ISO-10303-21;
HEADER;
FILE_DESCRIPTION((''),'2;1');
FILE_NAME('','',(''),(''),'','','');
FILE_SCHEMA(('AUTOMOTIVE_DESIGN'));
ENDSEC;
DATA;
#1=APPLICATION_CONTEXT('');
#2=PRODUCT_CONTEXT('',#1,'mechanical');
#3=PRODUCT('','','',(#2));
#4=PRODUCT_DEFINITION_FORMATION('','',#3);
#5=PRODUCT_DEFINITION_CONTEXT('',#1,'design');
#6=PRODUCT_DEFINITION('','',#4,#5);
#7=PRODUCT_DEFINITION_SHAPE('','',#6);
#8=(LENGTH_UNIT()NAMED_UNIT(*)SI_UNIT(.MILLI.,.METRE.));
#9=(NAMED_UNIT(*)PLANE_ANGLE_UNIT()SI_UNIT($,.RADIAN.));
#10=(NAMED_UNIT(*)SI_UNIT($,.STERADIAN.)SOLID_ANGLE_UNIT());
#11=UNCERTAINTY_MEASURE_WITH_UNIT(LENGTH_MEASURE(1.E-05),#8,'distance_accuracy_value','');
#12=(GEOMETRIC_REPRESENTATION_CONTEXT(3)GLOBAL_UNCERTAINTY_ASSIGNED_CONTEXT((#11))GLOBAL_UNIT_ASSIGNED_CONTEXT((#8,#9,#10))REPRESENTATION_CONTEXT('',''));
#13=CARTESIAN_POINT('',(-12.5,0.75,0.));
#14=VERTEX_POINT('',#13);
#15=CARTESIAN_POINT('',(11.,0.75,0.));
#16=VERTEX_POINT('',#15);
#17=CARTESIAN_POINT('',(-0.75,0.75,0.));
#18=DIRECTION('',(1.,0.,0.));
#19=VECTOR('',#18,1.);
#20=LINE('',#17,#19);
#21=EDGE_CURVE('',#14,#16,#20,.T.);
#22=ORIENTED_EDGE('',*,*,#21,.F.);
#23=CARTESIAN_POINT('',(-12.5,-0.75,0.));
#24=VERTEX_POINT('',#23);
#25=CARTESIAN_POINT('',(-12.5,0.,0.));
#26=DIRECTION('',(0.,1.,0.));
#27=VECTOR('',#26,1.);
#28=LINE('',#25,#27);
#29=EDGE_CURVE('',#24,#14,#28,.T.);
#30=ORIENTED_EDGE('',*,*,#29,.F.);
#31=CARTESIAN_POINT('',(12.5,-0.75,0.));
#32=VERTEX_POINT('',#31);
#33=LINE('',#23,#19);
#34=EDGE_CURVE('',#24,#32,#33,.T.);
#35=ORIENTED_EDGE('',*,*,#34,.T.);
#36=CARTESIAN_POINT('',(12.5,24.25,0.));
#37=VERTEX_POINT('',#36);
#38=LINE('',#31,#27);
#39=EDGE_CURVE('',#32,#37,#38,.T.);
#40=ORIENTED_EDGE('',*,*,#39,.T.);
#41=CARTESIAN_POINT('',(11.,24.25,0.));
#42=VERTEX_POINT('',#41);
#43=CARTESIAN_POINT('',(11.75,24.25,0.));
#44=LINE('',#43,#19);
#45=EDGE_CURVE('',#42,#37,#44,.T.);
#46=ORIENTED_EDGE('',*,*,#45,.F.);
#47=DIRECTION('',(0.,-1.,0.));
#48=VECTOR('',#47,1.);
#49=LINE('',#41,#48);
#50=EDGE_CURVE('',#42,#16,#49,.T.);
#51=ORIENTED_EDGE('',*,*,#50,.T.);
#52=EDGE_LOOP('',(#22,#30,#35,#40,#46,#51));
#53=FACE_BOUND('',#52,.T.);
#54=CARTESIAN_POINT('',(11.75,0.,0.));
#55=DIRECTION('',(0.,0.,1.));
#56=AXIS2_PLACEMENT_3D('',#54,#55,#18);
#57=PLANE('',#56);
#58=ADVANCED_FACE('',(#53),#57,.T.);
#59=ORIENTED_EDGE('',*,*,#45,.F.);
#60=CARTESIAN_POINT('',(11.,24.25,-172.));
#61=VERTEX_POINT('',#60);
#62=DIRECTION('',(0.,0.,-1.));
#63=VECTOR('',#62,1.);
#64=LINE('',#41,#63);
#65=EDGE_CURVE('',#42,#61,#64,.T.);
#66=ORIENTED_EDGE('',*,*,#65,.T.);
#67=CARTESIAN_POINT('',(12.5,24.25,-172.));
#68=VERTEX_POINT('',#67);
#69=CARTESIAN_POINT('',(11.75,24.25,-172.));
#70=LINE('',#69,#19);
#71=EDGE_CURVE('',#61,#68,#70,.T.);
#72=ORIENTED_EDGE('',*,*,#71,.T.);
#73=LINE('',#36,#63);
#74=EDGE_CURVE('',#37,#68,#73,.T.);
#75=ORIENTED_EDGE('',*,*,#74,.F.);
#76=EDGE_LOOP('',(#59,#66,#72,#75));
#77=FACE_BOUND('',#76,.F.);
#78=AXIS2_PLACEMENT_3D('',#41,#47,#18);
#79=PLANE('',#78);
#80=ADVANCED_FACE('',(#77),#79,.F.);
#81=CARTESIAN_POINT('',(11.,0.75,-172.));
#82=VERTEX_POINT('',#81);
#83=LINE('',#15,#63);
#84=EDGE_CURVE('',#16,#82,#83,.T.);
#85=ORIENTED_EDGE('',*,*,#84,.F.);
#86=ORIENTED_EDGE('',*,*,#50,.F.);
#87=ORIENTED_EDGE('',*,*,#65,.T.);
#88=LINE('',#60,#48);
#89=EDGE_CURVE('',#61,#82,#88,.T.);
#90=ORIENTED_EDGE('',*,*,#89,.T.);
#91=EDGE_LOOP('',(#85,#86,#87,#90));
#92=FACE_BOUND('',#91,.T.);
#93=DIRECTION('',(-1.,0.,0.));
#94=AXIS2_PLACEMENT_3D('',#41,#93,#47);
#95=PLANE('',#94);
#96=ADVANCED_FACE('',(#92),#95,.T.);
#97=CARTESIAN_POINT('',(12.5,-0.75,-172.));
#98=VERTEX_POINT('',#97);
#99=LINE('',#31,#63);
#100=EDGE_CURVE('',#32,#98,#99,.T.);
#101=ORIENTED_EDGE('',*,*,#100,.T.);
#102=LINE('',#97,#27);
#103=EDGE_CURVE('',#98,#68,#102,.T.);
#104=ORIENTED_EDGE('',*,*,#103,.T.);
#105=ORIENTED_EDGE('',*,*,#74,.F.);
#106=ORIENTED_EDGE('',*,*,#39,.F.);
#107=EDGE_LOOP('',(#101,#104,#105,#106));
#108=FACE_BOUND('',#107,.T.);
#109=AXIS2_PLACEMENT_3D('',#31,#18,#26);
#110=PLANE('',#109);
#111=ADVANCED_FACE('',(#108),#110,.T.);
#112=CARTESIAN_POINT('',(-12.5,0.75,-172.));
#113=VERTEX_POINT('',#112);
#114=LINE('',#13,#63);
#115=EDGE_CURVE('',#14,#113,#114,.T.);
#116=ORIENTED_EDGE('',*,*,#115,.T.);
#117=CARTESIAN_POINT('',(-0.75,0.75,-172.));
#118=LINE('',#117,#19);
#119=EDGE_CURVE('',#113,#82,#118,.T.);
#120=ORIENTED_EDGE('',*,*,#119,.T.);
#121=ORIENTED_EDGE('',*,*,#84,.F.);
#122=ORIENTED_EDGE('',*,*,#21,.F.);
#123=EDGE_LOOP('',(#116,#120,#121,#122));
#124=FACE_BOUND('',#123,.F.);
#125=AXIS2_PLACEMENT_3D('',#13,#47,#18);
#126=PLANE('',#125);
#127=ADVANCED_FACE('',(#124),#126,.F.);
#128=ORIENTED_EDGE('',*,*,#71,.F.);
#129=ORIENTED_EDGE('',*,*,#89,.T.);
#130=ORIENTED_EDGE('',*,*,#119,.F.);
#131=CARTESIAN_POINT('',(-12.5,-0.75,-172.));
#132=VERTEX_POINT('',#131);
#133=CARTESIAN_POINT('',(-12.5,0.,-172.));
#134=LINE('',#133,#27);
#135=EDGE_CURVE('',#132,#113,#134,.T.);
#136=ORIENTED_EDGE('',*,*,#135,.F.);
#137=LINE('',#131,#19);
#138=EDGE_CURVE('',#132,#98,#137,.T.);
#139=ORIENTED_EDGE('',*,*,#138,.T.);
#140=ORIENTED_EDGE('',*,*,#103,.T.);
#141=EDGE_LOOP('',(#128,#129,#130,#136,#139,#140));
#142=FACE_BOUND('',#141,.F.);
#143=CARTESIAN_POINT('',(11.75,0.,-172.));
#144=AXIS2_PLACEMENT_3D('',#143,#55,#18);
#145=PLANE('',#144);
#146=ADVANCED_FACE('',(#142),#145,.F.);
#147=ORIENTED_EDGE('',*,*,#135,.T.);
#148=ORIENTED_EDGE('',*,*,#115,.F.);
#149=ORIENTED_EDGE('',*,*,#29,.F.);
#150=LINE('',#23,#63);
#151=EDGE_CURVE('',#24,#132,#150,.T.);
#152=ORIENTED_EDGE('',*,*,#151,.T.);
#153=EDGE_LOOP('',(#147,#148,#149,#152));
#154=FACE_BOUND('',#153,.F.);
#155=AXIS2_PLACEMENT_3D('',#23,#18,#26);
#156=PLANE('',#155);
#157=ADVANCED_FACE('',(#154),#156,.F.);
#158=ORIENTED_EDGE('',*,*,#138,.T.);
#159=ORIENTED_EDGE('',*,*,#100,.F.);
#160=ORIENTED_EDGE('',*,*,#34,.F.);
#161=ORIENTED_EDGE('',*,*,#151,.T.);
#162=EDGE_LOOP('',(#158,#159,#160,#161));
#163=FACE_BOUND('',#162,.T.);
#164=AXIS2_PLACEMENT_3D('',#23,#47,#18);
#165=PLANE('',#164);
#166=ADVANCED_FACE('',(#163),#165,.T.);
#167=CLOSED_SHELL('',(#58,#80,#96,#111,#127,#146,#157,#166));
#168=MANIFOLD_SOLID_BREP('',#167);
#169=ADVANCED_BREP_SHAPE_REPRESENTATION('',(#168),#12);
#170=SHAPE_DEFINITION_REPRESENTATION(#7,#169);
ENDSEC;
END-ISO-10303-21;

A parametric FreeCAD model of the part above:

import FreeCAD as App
import Part
import Sketcher
from FreeCAD import Vector
Q = App.Units.Quantity


def add_polygon(sketch, points):
    """Adds a closed chain of lines whose ends are joined by coincident constraints."""
    first, n = sketch.GeometryCount, len(points)
    for a, b in zip(points, points[1:] + points[:1]):
        sketch.addGeometry(Part.LineSegment(App.Vector(*a, 0), App.Vector(*b, 0)), False)
    for i in range(n):
        sketch.addConstraint(Sketcher.Constraint("Coincident", first + i, 2, first + (i + 1) % n, 1))

doc = App.newDocument("Part")
body = doc.addObject("PartDesign::Body", "Body")

sketch1 = body.newObject("Sketcher::SketchObject", "Sketch")
sketch1.AttachmentSupport = (doc.getObject("XY_Plane"), [""])
sketch1.MapMode = "FlatFace"
add_polygon(sketch1, [(12.5, -0.8), (12.5, 24.2), (11, 24.2), (11, 0.8), (-12.5, 0.8), (-12.5, -0.8)])
sketch1.addConstraint(Sketcher.Constraint("Vertical", 0))
sketch1.addConstraint(Sketcher.Constraint("Horizontal", 1))
sketch1.addConstraint(Sketcher.Constraint("Vertical", 2))
sketch1.addConstraint(Sketcher.Constraint("Horizontal", 3))
sketch1.addConstraint(Sketcher.Constraint("Vertical", 4))
sketch1.addConstraint(Sketcher.Constraint("Horizontal", 5))
sketch1.addConstraint(Sketcher.Constraint("Symmetric", 3, 2, 5, 2, -1, 1))
sketch1.addConstraint(Sketcher.Constraint("Equal", 5, 0))
sketch1.addConstraint(Sketcher.Constraint("Equal", 3, 2))
sketch1.addConstraint(Sketcher.Constraint("DistanceX", 5, 1, 5, 2, Q("25 mm")))
sketch1.addConstraint(Sketcher.Constraint("DistanceX", 1, 2, 1, 1, Q("1.5 mm")))
pad1 = body.newObject("PartDesign::Pad", "Pad")
pad1.Profile = sketch1
pad1.Length = 172
pad1.Reversed = True

doc.recompute()
